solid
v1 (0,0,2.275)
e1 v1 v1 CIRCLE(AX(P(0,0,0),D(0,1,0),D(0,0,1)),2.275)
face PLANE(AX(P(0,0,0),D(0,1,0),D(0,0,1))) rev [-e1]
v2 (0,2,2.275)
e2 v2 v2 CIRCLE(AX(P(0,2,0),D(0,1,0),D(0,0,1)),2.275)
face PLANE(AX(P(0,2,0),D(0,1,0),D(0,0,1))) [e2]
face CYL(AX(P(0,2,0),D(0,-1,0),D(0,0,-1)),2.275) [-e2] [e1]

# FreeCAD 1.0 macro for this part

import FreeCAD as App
import Part
import Sketcher

V = App.Vector

doc = App.newDocument("Part")
params = doc.addObject("Spreadsheet::Sheet", "Params")
for row, (alias, value) in enumerate([
    ("sketch1_diameter", "4.55 mm"),
    ("pad1_length", "2 mm"),
], start=1):
    params.set(f"A{row}", alias)
    params.set(f"B{row}", "=" + value)
    params.setAlias(f"B{row}", alias)

body = doc.addObject("PartDesign::Body", "Body")

sketch1 = doc.addObject("Sketcher::SketchObject", "Sketch")
body.addObject(sketch1)
sketch1.AttachmentSupport = (doc.XZ_Plane, [""])
sketch1.MapMode = "FlatFace"
sketch1.addGeometry(Part.Circle(V(0, 0, 0), V(0, 0, 1), 2.3), False)
sketch1.addConstraint([
    Sketcher.Constraint("Coincident", 0, 3, -1, 1),
    Sketcher.Constraint("Diameter", 0, 4.55),
])
sketch1.setExpression("Constraints[1]", "Params.sketch1_diameter")
pad1 = doc.addObject("PartDesign::Pad", "Pad")
body.addObject(pad1)
pad1.Profile = sketch1
pad1.setExpression("Length", "Params.pad1_length")
pad1.Reversed = True

doc.recompute()
